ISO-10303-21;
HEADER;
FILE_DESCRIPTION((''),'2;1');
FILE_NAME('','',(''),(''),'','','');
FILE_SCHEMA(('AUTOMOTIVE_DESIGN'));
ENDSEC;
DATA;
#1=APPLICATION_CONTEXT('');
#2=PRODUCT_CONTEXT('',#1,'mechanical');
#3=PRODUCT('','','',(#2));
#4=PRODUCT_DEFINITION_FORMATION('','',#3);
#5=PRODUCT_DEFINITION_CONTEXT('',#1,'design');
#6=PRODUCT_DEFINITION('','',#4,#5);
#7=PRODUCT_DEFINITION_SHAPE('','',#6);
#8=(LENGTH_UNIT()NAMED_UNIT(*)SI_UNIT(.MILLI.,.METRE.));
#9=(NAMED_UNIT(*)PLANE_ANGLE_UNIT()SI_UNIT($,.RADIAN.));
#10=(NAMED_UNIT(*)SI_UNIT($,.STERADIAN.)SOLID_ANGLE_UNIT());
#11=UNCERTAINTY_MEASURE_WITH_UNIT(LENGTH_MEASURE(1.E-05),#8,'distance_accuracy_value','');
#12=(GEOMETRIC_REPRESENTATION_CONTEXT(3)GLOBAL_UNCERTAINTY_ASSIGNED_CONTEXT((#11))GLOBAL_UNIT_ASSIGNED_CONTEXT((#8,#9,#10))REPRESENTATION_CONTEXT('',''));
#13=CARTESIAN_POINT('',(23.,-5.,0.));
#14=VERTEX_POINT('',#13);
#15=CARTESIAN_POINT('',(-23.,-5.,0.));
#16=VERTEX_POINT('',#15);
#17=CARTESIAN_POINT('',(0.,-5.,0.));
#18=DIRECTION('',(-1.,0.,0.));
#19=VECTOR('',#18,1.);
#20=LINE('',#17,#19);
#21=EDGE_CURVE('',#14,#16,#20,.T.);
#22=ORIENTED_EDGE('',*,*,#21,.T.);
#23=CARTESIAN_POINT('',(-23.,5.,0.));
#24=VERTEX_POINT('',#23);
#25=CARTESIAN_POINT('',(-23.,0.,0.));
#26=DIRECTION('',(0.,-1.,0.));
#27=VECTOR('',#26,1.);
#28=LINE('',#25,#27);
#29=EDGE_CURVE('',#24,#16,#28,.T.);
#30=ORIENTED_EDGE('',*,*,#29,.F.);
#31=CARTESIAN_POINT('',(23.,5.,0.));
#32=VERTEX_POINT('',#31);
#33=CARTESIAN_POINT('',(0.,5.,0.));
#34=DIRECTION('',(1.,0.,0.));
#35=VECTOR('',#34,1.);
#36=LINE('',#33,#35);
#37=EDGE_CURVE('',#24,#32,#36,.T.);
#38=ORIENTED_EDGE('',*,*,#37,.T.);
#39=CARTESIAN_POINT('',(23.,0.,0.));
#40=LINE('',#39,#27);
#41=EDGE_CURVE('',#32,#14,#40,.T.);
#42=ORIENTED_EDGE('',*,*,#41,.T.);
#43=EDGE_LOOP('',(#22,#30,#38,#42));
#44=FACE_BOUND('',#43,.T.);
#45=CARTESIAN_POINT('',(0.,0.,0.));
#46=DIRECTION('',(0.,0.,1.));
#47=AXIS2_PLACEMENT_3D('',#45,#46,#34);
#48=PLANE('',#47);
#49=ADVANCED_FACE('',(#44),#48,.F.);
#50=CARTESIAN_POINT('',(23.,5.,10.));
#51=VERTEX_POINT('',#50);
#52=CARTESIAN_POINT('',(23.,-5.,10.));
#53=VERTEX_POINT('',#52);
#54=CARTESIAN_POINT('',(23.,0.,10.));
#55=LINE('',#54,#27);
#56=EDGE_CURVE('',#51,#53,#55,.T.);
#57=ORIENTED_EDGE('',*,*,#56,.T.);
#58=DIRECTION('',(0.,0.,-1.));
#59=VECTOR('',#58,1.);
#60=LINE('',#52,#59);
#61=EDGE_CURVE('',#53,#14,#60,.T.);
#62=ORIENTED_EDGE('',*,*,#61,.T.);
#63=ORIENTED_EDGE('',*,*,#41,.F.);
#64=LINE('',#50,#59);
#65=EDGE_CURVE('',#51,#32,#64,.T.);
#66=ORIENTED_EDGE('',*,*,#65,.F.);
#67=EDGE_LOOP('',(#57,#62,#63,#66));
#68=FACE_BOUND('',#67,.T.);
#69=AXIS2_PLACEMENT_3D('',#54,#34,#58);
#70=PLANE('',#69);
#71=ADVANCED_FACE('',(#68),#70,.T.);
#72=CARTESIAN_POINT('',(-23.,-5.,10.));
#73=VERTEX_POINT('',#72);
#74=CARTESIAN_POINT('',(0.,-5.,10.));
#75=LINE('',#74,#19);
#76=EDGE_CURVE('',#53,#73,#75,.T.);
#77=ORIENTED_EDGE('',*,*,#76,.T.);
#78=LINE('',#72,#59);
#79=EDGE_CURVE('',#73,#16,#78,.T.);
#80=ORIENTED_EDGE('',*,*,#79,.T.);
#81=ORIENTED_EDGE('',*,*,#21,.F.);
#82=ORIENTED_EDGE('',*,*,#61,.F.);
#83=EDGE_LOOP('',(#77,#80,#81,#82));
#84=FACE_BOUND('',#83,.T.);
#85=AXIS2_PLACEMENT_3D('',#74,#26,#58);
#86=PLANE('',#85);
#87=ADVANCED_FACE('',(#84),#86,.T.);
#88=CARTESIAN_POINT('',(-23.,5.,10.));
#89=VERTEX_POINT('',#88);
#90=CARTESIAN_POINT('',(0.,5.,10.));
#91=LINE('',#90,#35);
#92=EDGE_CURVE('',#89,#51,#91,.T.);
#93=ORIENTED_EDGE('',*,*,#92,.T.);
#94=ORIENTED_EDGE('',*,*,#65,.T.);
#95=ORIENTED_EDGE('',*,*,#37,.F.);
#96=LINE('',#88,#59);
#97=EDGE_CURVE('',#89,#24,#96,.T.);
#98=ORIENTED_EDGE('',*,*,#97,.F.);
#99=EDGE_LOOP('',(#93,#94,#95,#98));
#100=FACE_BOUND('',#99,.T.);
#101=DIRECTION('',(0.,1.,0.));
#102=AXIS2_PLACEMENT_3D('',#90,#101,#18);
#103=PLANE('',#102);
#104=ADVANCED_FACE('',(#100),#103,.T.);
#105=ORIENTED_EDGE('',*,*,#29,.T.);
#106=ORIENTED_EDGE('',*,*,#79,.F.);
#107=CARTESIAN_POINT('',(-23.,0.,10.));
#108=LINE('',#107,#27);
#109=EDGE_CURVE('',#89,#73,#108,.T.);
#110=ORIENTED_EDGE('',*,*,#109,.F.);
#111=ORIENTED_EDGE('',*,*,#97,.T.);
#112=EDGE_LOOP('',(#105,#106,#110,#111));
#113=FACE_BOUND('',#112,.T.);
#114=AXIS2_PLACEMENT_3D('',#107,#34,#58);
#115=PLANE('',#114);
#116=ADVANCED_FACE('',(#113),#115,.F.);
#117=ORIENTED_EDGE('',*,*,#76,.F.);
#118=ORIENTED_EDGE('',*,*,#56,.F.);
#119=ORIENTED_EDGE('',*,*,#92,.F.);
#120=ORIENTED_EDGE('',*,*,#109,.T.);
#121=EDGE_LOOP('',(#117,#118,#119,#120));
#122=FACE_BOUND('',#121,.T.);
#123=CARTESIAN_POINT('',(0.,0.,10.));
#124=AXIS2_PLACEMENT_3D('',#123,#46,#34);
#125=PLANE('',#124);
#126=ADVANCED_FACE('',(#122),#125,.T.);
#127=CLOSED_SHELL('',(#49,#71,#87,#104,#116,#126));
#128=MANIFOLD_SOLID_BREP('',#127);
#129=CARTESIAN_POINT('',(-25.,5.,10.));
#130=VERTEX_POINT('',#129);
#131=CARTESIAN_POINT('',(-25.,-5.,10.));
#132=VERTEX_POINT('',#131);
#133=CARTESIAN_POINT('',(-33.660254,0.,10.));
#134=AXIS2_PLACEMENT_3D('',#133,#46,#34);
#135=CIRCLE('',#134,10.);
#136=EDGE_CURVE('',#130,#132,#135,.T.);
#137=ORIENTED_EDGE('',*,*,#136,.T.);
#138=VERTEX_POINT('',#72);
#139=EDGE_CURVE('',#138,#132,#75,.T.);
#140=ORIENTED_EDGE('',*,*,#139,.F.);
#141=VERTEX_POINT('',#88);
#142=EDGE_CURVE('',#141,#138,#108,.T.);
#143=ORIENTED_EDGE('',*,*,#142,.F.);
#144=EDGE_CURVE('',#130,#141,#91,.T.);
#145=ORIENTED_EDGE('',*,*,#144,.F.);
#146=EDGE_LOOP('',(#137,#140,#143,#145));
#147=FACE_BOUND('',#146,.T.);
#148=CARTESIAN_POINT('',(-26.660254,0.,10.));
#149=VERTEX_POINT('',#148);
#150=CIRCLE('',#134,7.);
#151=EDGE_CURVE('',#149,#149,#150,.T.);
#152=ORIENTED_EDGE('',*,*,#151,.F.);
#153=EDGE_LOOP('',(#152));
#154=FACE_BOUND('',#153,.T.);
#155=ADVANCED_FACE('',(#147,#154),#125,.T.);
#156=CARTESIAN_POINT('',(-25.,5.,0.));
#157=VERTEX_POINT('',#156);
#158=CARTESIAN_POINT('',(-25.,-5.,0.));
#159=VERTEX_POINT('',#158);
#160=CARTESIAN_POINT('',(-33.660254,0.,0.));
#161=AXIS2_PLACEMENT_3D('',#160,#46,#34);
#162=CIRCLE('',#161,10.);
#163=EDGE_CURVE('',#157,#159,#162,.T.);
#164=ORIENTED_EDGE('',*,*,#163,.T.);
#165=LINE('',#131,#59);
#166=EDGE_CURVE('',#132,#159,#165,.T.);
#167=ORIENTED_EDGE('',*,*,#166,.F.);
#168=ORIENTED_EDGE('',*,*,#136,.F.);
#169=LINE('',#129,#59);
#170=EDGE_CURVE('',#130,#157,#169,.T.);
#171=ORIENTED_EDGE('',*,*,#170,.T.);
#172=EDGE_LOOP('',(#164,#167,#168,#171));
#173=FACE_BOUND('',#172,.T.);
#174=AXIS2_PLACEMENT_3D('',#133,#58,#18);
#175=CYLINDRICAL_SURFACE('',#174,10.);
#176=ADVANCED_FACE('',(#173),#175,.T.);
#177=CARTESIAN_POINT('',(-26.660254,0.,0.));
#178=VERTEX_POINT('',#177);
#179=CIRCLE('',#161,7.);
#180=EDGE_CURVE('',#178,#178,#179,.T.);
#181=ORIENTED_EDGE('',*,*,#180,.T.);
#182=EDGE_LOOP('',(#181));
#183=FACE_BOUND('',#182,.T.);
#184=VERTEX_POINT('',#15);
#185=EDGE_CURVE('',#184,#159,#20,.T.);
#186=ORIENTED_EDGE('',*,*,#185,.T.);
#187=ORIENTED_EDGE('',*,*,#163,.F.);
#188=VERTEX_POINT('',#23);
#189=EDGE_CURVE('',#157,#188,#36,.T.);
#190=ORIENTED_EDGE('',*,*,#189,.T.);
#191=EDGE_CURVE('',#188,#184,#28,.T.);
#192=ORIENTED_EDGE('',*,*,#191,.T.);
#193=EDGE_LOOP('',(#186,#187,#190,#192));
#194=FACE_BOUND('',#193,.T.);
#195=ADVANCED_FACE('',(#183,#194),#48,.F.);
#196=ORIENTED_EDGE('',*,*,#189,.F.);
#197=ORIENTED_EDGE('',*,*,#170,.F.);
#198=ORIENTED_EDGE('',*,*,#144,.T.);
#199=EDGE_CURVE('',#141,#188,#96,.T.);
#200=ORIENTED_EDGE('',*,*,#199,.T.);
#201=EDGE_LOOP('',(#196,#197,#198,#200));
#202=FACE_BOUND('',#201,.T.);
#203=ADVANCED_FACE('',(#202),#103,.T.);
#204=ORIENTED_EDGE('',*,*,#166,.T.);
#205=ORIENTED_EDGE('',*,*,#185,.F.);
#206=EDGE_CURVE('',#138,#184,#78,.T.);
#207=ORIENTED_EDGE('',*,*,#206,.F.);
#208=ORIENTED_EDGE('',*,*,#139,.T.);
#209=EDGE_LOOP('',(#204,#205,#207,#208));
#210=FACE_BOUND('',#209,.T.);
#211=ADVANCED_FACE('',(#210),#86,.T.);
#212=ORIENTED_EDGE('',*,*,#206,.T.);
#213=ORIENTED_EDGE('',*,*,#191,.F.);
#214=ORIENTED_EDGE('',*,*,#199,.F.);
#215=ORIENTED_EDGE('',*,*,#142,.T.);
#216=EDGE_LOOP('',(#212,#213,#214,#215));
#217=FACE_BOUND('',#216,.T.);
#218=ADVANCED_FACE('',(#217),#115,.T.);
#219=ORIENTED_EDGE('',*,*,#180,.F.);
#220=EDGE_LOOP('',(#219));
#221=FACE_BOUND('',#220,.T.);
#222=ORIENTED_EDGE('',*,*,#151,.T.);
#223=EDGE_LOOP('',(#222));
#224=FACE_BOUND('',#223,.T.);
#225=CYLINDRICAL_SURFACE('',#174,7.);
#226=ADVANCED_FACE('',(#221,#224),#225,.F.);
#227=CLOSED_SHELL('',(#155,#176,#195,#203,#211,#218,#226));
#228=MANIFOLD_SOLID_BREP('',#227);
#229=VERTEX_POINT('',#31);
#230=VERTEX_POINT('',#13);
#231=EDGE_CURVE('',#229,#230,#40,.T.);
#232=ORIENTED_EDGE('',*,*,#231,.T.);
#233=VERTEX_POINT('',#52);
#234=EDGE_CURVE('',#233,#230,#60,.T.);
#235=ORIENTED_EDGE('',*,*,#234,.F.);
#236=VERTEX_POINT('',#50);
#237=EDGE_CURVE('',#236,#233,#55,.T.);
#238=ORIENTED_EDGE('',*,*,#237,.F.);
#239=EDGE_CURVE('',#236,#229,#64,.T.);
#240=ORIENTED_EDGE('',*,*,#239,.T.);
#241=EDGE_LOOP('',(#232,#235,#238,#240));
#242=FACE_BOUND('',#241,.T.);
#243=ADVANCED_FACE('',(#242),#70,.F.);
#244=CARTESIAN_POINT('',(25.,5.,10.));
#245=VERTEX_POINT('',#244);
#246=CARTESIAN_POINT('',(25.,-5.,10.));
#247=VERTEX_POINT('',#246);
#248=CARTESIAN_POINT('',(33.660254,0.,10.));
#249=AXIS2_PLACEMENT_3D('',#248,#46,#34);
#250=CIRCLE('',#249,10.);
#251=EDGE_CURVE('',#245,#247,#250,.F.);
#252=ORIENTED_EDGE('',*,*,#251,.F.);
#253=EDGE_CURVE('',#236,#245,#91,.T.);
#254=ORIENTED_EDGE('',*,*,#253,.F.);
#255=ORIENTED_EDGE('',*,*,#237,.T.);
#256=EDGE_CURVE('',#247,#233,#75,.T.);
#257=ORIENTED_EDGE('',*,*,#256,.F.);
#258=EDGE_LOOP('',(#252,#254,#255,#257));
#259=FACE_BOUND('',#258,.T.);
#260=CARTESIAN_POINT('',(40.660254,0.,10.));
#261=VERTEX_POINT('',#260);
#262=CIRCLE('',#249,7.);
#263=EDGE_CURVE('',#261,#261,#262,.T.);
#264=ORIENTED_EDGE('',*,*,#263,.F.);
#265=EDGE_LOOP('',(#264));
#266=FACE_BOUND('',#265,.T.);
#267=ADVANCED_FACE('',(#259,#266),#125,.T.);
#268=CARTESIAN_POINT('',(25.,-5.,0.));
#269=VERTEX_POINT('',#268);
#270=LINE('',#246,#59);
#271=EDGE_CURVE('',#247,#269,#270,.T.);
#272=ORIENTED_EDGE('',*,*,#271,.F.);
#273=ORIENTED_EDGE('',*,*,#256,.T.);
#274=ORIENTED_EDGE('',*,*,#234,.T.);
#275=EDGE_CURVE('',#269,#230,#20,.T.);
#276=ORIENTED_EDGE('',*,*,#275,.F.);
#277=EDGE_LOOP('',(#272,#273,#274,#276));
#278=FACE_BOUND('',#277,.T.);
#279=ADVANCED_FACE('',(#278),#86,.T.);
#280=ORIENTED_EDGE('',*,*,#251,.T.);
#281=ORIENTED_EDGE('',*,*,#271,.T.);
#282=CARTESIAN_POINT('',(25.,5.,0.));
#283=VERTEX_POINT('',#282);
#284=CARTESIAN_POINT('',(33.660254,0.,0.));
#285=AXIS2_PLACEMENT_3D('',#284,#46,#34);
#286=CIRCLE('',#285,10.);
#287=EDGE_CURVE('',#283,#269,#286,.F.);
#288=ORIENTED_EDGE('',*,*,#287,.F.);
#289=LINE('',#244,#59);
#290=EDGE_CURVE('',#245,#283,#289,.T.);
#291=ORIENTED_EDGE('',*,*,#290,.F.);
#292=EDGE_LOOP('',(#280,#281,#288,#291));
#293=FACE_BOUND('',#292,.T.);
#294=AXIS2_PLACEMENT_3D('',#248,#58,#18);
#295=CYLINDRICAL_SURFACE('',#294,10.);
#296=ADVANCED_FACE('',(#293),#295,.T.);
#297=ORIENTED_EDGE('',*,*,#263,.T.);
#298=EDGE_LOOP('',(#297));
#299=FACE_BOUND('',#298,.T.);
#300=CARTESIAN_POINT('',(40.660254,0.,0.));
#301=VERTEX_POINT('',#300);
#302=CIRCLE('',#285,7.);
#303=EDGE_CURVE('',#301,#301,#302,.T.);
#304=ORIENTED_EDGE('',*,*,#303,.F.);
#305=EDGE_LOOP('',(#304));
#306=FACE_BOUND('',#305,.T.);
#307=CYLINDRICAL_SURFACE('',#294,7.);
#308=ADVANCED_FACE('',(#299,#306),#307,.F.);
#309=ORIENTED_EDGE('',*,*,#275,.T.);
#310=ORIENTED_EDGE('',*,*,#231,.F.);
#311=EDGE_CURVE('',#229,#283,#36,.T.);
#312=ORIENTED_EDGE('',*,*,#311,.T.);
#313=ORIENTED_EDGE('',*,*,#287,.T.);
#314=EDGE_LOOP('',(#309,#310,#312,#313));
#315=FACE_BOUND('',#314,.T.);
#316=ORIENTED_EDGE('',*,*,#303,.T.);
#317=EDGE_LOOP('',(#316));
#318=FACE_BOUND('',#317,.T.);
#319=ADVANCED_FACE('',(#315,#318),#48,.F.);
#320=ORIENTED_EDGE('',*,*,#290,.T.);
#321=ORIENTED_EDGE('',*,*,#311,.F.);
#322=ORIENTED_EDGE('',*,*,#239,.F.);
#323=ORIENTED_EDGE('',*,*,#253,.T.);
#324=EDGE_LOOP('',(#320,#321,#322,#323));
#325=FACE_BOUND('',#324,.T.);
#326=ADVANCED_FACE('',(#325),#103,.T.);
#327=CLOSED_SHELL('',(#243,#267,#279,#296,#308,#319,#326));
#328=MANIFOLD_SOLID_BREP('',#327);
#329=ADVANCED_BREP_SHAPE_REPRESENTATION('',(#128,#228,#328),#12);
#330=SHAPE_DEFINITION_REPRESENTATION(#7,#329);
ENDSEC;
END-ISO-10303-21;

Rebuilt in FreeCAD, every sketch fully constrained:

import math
import FreeCAD as App
import Part
import Sketcher
from FreeCAD import Vector
Q = App.Units.Quantity

doc = App.newDocument("Part")
params = doc.addObject("Spreadsheet::Sheet", "Params")
for row, (alias, value) in enumerate([
    ("sketch1_diameter", "14 mm"),
    ("sketch1_radius", "10 mm"),
    ("sketch1_width", "2 mm"),
    ("sketch1_height", "10 mm"),
    ("pad1_length", "10 mm"),
    ("sketch2_diameter", "14 mm"),
    ("sketch2_radius", "10 mm"),
    ("sketch2_width", "2 mm"),
    ("sketch2_height", "10 mm"),
    ("pad2_length", "10 mm"),
    ("sketch3_width", "46 mm"),
    ("sketch3_height", "10 mm"),
    ("pad3_length", "10 mm"),
], start=1):
    params.set(f"A{row}", alias)
    params.set(f"B{row}", "=" + value)
    params.setAlias(f"B{row}", alias)

body = doc.addObject("PartDesign::Body", "Body")

sketch1 = body.newObject("Sketcher::SketchObject", "Sketch")
sketch1.AttachmentSupport = (doc.getObject("XY_Plane"), [""])
sketch1.MapMode = "FlatFace"
sketch1.addGeometry([
    Part.LineSegment(Vector(-23, 5, 0), Vector(-25, 5, 0)),
    Part.ArcOfCircle(Part.Circle(Vector(-33.7, 0, 0), Vector(0, 0, 1), 10), math.radians(30), math.radians(330)),
    Part.LineSegment(Vector(-25, -5, 0), Vector(-23, -5, 0)),
    Part.LineSegment(Vector(-23, -5, 0), Vector(-23, 5, 0)),
    Part.Circle(Vector(-33.7, 0, 0), Vector(0, 0, 1), 7),
], False)
sketch1.addConstraint([
    Sketcher.Constraint("Coincident", 0, 2, 1, 1),
    Sketcher.Constraint("Coincident", 1, 2, 2, 1),
    Sketcher.Constraint("Coincident", 2, 2, 3, 1),
    Sketcher.Constraint("Coincident", 3, 2, 0, 1),
    Sketcher.Constraint("Horizontal", 0),
    Sketcher.Constraint("Horizontal", 2),
    Sketcher.Constraint("Vertical", 3),
    Sketcher.Constraint("Coincident", 4, 3, 1, 3),
    Sketcher.Constraint("Symmetric", 0, 2, 1, 2, -1),
    Sketcher.Constraint("Diameter", 4, Q("14 mm")),
    Sketcher.Constraint("Radius", 1, Q("10 mm")),
    Sketcher.Constraint("DistanceX", 0, 2, 0, 1, Q("2 mm")),
    Sketcher.Constraint("DistanceY", 3, 1, 3, 2, Q("10 mm")),
    Sketcher.Constraint("DistanceX", 0, 2, -1, 1, Q("25 mm")),
])
sketch1.setExpression("Constraints[9]", "Params.sketch1_diameter")
sketch1.setExpression("Constraints[10]", "Params.sketch1_radius")
sketch1.setExpression("Constraints[11]", "Params.sketch1_width")
sketch1.setExpression("Constraints[12]", "Params.sketch1_height")
pad1 = body.newObject("PartDesign::Pad", "Pad")
pad1.Profile = sketch1
pad1.setExpression("Length", "Params.pad1_length")
body2 = doc.addObject("PartDesign::Body", "Body001")

sketch2 = body2.newObject("Sketcher::SketchObject", "Sketch001")
sketch2.AttachmentSupport = (doc.getObject("XY_Plane001"), [""])
sketch2.MapMode = "FlatFace"
sketch2.addGeometry([
    Part.LineSegment(Vector(25, 5, 0), Vector(23, 5, 0)),
    Part.LineSegment(Vector(23, 5, 0), Vector(23, -5, 0)),
    Part.LineSegment(Vector(23, -5, 0), Vector(25, -5, 0)),
    Part.ArcOfCircle(Part.Circle(Vector(33.7, 0, 0), Vector(0, 0, 1), 10), math.radians(-150), math.radians(150)),
    Part.Circle(Vector(33.7, 0, 0), Vector(0, 0, 1), 7),
], False)
sketch2.addConstraint([
    Sketcher.Constraint("Coincident", 0, 2, 1, 1),
    Sketcher.Constraint("Coincident", 1, 2, 2, 1),
    Sketcher.Constraint("Coincident", 2, 2, 3, 1),
    Sketcher.Constraint("Coincident", 3, 2, 0, 1),
    Sketcher.Constraint("Horizontal", 0),
    Sketcher.Constraint("Vertical", 1),
    Sketcher.Constraint("Horizontal", 2),
    Sketcher.Constraint("Coincident", 4, 3, 3, 3),
    Sketcher.Constraint("Symmetric", 2, 2, 3, 2, -1),
    Sketcher.Constraint("Diameter", 4, Q("14 mm")),
    Sketcher.Constraint("Radius", 3, Q("10 mm")),
    Sketcher.Constraint("DistanceX", 0, 2, 0, 1, Q("2 mm")),
    Sketcher.Constraint("DistanceY", 1, 2, 1, 1, Q("10 mm")),
    Sketcher.Constraint("DistanceX", -1, 1, 0, 2, Q("23 mm")),
])
sketch2.setExpression("Constraints[9]", "Params.sketch2_diameter")
sketch2.setExpression("Constraints[10]", "Params.sketch2_radius")
sketch2.setExpression("Constraints[11]", "Params.sketch2_width")
sketch2.setExpression("Constraints[12]", "Params.sketch2_height")
pad2 = body2.newObject("PartDesign::Pad", "Pad001")
pad2.Profile = sketch2
pad2.setExpression("Length", "Params.pad2_length")
body3 = doc.addObject("PartDesign::Body", "Body002")

sketch3 = body3.newObject("Sketcher::SketchObject", "Sketch002")
sketch3.AttachmentSupport = (doc.getObject("XY_Plane002"), [""])
sketch3.MapMode = "FlatFace"
sketch3.addGeometry([
    Part.LineSegment(Vector(-23, 5, 0), Vector(-23, -5, 0)),
    Part.LineSegment(Vector(-23, -5, 0), Vector(23, -5, 0)),
    Part.LineSegment(Vector(23, -5, 0), Vector(23, 5, 0)),
    Part.LineSegment(Vector(23, 5, 0), Vector(-23, 5, 0)),
], False)
sketch3.addConstraint([
    Sketcher.Constraint("Coincident", 0, 2, 1, 1),
    Sketcher.Constraint("Coincident", 1, 2, 2, 1),
    Sketcher.Constraint("Coincident", 2, 2, 3, 1),
    Sketcher.Constraint("Coincident", 3, 2, 0, 1),
    Sketcher.Constraint("Vertical", 0),
    Sketcher.Constraint("Horizontal", 1),
    Sketcher.Constraint("Vertical", 2),
    Sketcher.Constraint("Horizontal", 3),
    Sketcher.Constraint("Symmetric", 0, 2, 2, 2, -1, 1),
    Sketcher.Constraint("DistanceX", 1, 1, 1, 2, Q("46 mm")),
    Sketcher.Constraint("DistanceY", 0, 2, 0, 1, Q("10 mm")),
])
sketch3.setExpression("Constraints[9]", "Params.sketch3_width")
sketch3.setExpression("Constraints[10]", "Params.sketch3_height")
pad3 = body3.newObject("PartDesign::Pad", "Pad002")
pad3.Profile = sketch3
pad3.setExpression("Length", "Params.pad3_length")

doc.recompute()
